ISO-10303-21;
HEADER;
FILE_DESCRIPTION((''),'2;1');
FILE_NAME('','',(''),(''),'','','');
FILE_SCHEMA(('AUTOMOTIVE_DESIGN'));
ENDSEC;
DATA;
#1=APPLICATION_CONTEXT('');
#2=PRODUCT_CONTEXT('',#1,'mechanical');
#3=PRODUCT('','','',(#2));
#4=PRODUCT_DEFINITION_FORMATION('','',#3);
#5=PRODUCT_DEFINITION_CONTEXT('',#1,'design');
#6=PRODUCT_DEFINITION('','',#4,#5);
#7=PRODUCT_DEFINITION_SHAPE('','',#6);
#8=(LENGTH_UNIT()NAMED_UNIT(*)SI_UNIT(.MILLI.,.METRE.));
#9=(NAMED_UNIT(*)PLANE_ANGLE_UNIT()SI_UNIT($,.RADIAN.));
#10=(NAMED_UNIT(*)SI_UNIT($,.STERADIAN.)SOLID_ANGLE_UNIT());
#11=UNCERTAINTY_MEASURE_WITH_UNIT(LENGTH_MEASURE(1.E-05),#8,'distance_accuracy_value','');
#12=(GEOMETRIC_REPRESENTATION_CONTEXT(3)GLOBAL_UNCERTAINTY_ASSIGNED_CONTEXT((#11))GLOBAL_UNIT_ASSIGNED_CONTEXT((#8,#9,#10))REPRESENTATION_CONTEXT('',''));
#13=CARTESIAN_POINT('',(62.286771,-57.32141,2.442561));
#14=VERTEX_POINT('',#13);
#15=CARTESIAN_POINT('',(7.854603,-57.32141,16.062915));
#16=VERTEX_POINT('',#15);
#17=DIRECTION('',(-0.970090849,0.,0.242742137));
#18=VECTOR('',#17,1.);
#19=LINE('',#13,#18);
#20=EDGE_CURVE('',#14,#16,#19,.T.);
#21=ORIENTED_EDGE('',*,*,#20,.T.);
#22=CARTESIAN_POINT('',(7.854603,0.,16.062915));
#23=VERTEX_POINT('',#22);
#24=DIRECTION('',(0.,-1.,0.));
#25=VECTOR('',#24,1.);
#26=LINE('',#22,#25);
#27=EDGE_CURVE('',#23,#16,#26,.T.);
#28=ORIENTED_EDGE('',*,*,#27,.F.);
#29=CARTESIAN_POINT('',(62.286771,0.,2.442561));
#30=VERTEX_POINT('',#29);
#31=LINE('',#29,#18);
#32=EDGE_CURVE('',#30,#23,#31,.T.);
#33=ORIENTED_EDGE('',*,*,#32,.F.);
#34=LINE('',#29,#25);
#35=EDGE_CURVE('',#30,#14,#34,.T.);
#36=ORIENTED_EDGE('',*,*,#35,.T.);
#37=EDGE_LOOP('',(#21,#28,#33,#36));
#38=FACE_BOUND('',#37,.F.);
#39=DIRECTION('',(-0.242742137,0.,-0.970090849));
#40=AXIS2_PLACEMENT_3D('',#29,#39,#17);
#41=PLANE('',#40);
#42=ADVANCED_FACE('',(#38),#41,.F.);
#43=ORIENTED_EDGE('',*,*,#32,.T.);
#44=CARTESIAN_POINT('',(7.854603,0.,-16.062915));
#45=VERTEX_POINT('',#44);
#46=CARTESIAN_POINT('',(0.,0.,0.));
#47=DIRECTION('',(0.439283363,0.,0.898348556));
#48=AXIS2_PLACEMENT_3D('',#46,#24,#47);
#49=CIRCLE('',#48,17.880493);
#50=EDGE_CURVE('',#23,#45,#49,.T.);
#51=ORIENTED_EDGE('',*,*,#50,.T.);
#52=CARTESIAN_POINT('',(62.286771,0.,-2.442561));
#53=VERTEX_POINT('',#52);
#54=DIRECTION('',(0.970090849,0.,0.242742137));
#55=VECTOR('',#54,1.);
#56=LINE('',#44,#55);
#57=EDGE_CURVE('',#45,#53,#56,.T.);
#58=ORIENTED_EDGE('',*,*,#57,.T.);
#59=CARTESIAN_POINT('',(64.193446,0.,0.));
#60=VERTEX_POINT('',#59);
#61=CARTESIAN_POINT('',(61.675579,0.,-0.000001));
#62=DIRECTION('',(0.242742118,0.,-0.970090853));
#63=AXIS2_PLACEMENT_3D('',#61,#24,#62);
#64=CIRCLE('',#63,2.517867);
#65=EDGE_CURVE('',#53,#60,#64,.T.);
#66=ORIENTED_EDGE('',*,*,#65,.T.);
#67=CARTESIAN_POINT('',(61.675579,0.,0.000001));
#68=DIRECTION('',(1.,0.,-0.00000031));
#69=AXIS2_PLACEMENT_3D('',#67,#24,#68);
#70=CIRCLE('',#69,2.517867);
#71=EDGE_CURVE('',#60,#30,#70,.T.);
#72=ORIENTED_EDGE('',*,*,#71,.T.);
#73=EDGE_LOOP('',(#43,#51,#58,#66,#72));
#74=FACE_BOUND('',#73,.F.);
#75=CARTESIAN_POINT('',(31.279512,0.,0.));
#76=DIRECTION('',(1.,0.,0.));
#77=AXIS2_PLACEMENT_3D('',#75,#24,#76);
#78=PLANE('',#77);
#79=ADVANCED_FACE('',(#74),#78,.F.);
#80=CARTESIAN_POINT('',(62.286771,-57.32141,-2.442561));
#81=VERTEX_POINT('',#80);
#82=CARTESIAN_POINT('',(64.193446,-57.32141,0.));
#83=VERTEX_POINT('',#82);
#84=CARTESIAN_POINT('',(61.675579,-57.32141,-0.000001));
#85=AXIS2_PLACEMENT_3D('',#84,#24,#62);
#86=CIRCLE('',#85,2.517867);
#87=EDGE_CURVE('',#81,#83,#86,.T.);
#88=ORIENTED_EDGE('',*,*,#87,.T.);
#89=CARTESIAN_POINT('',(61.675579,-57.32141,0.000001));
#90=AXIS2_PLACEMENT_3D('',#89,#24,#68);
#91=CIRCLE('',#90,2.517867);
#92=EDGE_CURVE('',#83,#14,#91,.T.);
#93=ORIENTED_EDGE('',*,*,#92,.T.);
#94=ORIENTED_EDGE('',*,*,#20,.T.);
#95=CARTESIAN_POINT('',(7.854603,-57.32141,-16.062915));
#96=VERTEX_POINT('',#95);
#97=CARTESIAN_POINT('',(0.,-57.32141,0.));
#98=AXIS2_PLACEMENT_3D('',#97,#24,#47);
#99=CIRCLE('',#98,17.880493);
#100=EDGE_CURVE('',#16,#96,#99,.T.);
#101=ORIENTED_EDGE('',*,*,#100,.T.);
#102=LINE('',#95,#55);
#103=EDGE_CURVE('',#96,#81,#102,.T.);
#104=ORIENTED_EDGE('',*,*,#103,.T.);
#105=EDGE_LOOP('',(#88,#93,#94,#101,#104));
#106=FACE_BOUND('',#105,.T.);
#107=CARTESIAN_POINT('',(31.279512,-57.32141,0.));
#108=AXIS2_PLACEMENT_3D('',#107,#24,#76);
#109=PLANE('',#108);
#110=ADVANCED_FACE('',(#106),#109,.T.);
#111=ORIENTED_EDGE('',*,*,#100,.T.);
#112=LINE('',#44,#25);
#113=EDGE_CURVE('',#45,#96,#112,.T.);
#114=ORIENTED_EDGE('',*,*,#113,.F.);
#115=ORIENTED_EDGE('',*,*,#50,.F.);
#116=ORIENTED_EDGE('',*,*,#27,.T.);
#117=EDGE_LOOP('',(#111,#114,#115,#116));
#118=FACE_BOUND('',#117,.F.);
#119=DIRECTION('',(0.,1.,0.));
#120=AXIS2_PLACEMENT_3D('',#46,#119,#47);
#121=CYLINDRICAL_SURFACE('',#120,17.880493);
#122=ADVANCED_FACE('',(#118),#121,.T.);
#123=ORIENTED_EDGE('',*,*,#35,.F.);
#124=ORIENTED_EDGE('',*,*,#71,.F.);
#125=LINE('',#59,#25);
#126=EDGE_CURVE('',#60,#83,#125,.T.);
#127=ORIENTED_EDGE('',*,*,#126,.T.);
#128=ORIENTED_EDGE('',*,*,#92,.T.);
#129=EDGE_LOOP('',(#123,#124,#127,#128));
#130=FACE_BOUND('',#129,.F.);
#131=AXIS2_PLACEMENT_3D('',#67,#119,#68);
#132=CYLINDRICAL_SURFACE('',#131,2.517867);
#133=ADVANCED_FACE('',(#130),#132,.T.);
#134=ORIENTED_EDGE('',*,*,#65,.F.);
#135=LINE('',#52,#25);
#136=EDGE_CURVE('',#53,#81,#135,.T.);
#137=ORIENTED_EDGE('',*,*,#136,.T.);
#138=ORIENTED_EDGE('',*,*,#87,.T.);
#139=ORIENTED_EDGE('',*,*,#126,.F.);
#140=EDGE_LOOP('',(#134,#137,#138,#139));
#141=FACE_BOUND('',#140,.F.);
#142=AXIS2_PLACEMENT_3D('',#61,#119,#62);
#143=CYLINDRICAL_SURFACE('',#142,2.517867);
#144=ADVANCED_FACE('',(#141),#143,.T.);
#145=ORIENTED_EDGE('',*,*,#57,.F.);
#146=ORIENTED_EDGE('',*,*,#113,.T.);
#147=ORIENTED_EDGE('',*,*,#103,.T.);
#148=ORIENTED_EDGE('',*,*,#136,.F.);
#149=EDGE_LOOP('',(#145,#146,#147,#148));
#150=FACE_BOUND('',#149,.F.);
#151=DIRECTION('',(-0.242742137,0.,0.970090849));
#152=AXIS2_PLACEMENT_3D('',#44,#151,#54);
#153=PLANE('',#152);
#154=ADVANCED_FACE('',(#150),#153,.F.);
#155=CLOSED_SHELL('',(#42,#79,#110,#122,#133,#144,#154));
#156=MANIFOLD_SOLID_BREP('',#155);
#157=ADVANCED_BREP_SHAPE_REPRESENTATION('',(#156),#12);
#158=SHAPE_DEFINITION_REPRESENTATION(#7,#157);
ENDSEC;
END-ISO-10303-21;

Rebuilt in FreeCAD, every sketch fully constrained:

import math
import FreeCAD as App
import Part
import Sketcher
from FreeCAD import Vector
Q = App.Units.Quantity

doc = App.newDocument("Part")
params = doc.addObject("Spreadsheet::Sheet", "Params")
for row, (alias, value) in enumerate([
    ("pad1_length", "57.32141 mm"),
], start=1):
    params.set(f"A{row}", alias)
    params.set(f"B{row}", "=" + value)
    params.setAlias(f"B{row}", alias)

body = doc.addObject("PartDesign::Body", "Body")

# Sketch on XZ plane
sketch1 = body.newObject("Sketcher::SketchObject", "Sketch")
sketch1.AttachmentSupport = (doc.getObject("XZ_Plane"), [""])
sketch1.MapMode = "FlatFace"
sketch1.addGeometry([
    Part.LineSegment(Vector(7.854603, -16.062915, 0), Vector(62.286771, -2.442561, 0)),  # 0
    Part.ArcOfCircle(Part.Circle(Vector(61.675579, -0.000001, 0), Vector(0, 0, 1), 2.517867), math.radians(-75.951561), math.radians(0.000018)),  # 1
    Part.ArcOfCircle(Part.Circle(Vector(61.675579, 0.000001, 0), Vector(0, 0, 1), 2.517867), math.radians(-0.000018), math.radians(75.951561)),  # 2
    Part.LineSegment(Vector(62.286771, 2.442561, 0), Vector(7.854603, 16.062915, 0)),  # 3
    Part.ArcOfCircle(Part.Circle(Vector(0, 0, 0), Vector(0, 0, 1), 17.880493), math.radians(63.941834), math.radians(296.058166)),  # 4
], False)
sketch1.addConstraint([
    Sketcher.Constraint("Tangent", 0, 2, 1, 1),
    Sketcher.Constraint("Tangent", 1, 2, 2, 1),
    Sketcher.Constraint("Tangent", 2, 2, 3, 1),
    Sketcher.Constraint("Coincident", 3, 2, 4, 1),
    Sketcher.Constraint("Coincident", 4, 2, 0, 1),
    Sketcher.Constraint("Coincident", 4, 3, -1, 1),
    Sketcher.Constraint("Equal", 1, 2),
    Sketcher.Constraint("Symmetric", 0, 2, 2, 2, -1),
    Sketcher.Constraint("PointOnObject", 1, 2, -1),
    Sketcher.Constraint("Radius", 1, Q("2.517867 mm")),
    Sketcher.Constraint("Radius", 4, Q("17.880493 mm")),
    Sketcher.Constraint("Distance", 0, Q("56.110382 mm")),
    Sketcher.Constraint("DistanceX", -1, 1, 1, 3, Q("61.675579 mm")),
])
pad1 = body.newObject("PartDesign::Pad", "Pad")
pad1.Profile = sketch1
pad1.setExpression("Length", "Params.pad1_length")

doc.recompute()
